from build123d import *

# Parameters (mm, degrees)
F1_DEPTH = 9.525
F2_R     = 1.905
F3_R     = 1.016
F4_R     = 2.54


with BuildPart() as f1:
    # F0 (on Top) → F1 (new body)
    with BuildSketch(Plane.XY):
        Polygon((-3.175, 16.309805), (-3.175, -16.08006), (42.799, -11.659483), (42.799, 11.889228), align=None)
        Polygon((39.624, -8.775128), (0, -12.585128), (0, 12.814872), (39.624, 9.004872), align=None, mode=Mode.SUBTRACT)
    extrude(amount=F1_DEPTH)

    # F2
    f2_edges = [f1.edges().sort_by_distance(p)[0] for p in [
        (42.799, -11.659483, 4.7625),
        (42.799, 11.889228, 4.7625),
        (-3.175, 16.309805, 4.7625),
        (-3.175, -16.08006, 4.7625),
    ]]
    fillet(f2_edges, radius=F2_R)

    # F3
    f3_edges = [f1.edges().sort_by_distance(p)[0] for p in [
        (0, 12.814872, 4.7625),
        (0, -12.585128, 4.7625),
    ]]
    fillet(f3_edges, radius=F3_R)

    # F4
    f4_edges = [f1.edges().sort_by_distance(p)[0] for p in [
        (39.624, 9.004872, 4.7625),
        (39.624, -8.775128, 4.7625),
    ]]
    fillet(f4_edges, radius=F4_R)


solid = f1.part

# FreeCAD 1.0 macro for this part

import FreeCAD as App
import Part
import Sketcher
Q = App.Units.Quantity


def edges_at(feature, points):
    """Names of the edges that pass closest to the given points."""
    edges = feature.Shape.Edges
    near = lambda p: min(range(len(edges)), key=lambda i: edges[i].distToShape(Part.Vertex(*p))[0])
    return sorted({f"Edge{near(p) + 1}" for p in points})

doc = App.newDocument("Part")
params = doc.addObject("Spreadsheet::Sheet", "Params")
for row, (alias, value) in enumerate([
    ("sketch1_height", "1 in"),
    ("sketch1_height2", "0.7 in"),
    ("pad1_length", "0.375 in"),
    ("fillet_radius", "0.075 in"),
    ("fillet2_radius", "0.04 in"),
    ("fillet3_radius", "0.1 in"),
], start=1):
    params.set(f"A{row}", alias)
    params.set(f"B{row}", "=" + value)
    params.setAlias(f"B{row}", alias)

body = doc.addObject("PartDesign::Body", "Body")

# Sketch on XY plane
sketch1 = body.newObject("Sketcher::SketchObject", "Sketch")
sketch1.AttachmentSupport = (doc.getObject("XY_Plane"), [""])
sketch1.MapMode = "FlatFace"
sketch1.addGeometry(Part.LineSegment(App.Vector(-3, 16, 0), App.Vector(-3, -16, 0)), False)
sketch1.addGeometry(Part.LineSegment(App.Vector(-3, -16, 0), App.Vector(43, -12, 0)), False)
sketch1.addGeometry(Part.LineSegment(App.Vector(43, -12, 0), App.Vector(43, 12, 0)), False)
sketch1.addGeometry(Part.LineSegment(App.Vector(43, 12, 0), App.Vector(-3, 16, 0)), False)
sketch1.addGeometry(Part.LineSegment(App.Vector(40, 9, 0), App.Vector(40, -9, 0)), False)
sketch1.addGeometry(Part.LineSegment(App.Vector(40, -9, 0), App.Vector(0, -13, 0)), False)
sketch1.addGeometry(Part.LineSegment(App.Vector(0, -13, 0), App.Vector(0, 13, 0)), False)
sketch1.addGeometry(Part.LineSegment(App.Vector(0, 13, 0), App.Vector(40, 9, 0)), False)
sketch1.addConstraint(Sketcher.Constraint("Coincident", 0, 2, 1, 1))
sketch1.addConstraint(Sketcher.Constraint("Coincident", 1, 2, 2, 1))
sketch1.addConstraint(Sketcher.Constraint("Coincident", 2, 2, 3, 1))
sketch1.addConstraint(Sketcher.Constraint("Coincident", 3, 2, 0, 1))
sketch1.addConstraint(Sketcher.Constraint("Coincident", 4, 2, 5, 1))
sketch1.addConstraint(Sketcher.Constraint("Coincident", 5, 2, 6, 1))
sketch1.addConstraint(Sketcher.Constraint("Coincident", 6, 2, 7, 1))
sketch1.addConstraint(Sketcher.Constraint("Coincident", 7, 2, 4, 1))
sketch1.addConstraint(Sketcher.Constraint("Vertical", 0))
sketch1.addConstraint(Sketcher.Constraint("Vertical", 2))
sketch1.addConstraint(Sketcher.Constraint("Vertical", 4))
sketch1.addConstraint(Sketcher.Constraint("Vertical", 6))
sketch1.addConstraint(Sketcher.Constraint("PointOnObject", 5, 2, -2))
sketch1.addConstraint(Sketcher.Constraint("Parallel", 1, 5))
sketch1.addConstraint(Sketcher.Constraint("Parallel", 3, 7))
sketch1.addConstraint(Sketcher.Constraint("Equal", 1, 3))
sketch1.addConstraint(Sketcher.Constraint("DistanceY", 6, 1, 6, 2, Q("1 in")))
sketch1.addConstraint(Sketcher.Constraint("DistanceY", 4, 2, 4, 1, Q("0.7 in")))
sketch1.addConstraint(Sketcher.Constraint("DistanceX", -1, 1, 4, 2, Q("1.56 in")))
sketch1.addConstraint(Sketcher.Constraint("DistanceX", 0, 2, 1, 2, Q("1.81 in")))
sketch1.addConstraint(Sketcher.Constraint("DistanceX", 0, 2, -1, 1, Q("0.125 in")))
sketch1.addConstraint(Sketcher.Constraint("DistanceY", 2, 1, 2, 2, Q("23.548711 mm")))
sketch1.addConstraint(Sketcher.Constraint("DistanceY", 0, 2, -1, 1, Q("16.08006 mm")))
sketch1.addConstraint(Sketcher.Constraint("DistanceY", -1, 1, 6, 2, Q("12.814872 mm")))
sketch1.setExpression("Constraints[16]", "Params.sketch1_height")
sketch1.setExpression("Constraints[17]", "Params.sketch1_height2")
pad1 = body.newObject("PartDesign::Pad", "Pad")
pad1.Profile = sketch1
pad1.setExpression("Length", "Params.pad1_length")
doc.recompute()

fillet = body.newObject("PartDesign::Fillet", "Fillet")
fillet.Base = (pad1, edges_at(pad1, [
    (42.799, -11.659, 4.763),
    (42.799, 11.889, 4.763),
    (-3.175, 16.31, 4.763),
    (-3.175, -16.08, 4.763),
]))
fillet.setExpression("Radius", "Params.fillet_radius")
doc.recompute()

fillet2 = body.newObject("PartDesign::Fillet", "Fillet001")
fillet2.Base = (fillet, edges_at(fillet, [(0, 12.815, 4.763), (0, -12.585, 4.763)]))
fillet2.setExpression("Radius", "Params.fillet2_radius")
doc.recompute()

fillet3 = body.newObject("PartDesign::Fillet", "Fillet002")
fillet3.Base = (fillet2, edges_at(fillet2, [(39.624, 9.005, 4.763), (39.624, -8.775, 4.763)]))
fillet3.setExpression("Radius", "Params.fillet3_radius")

doc.recompute()
